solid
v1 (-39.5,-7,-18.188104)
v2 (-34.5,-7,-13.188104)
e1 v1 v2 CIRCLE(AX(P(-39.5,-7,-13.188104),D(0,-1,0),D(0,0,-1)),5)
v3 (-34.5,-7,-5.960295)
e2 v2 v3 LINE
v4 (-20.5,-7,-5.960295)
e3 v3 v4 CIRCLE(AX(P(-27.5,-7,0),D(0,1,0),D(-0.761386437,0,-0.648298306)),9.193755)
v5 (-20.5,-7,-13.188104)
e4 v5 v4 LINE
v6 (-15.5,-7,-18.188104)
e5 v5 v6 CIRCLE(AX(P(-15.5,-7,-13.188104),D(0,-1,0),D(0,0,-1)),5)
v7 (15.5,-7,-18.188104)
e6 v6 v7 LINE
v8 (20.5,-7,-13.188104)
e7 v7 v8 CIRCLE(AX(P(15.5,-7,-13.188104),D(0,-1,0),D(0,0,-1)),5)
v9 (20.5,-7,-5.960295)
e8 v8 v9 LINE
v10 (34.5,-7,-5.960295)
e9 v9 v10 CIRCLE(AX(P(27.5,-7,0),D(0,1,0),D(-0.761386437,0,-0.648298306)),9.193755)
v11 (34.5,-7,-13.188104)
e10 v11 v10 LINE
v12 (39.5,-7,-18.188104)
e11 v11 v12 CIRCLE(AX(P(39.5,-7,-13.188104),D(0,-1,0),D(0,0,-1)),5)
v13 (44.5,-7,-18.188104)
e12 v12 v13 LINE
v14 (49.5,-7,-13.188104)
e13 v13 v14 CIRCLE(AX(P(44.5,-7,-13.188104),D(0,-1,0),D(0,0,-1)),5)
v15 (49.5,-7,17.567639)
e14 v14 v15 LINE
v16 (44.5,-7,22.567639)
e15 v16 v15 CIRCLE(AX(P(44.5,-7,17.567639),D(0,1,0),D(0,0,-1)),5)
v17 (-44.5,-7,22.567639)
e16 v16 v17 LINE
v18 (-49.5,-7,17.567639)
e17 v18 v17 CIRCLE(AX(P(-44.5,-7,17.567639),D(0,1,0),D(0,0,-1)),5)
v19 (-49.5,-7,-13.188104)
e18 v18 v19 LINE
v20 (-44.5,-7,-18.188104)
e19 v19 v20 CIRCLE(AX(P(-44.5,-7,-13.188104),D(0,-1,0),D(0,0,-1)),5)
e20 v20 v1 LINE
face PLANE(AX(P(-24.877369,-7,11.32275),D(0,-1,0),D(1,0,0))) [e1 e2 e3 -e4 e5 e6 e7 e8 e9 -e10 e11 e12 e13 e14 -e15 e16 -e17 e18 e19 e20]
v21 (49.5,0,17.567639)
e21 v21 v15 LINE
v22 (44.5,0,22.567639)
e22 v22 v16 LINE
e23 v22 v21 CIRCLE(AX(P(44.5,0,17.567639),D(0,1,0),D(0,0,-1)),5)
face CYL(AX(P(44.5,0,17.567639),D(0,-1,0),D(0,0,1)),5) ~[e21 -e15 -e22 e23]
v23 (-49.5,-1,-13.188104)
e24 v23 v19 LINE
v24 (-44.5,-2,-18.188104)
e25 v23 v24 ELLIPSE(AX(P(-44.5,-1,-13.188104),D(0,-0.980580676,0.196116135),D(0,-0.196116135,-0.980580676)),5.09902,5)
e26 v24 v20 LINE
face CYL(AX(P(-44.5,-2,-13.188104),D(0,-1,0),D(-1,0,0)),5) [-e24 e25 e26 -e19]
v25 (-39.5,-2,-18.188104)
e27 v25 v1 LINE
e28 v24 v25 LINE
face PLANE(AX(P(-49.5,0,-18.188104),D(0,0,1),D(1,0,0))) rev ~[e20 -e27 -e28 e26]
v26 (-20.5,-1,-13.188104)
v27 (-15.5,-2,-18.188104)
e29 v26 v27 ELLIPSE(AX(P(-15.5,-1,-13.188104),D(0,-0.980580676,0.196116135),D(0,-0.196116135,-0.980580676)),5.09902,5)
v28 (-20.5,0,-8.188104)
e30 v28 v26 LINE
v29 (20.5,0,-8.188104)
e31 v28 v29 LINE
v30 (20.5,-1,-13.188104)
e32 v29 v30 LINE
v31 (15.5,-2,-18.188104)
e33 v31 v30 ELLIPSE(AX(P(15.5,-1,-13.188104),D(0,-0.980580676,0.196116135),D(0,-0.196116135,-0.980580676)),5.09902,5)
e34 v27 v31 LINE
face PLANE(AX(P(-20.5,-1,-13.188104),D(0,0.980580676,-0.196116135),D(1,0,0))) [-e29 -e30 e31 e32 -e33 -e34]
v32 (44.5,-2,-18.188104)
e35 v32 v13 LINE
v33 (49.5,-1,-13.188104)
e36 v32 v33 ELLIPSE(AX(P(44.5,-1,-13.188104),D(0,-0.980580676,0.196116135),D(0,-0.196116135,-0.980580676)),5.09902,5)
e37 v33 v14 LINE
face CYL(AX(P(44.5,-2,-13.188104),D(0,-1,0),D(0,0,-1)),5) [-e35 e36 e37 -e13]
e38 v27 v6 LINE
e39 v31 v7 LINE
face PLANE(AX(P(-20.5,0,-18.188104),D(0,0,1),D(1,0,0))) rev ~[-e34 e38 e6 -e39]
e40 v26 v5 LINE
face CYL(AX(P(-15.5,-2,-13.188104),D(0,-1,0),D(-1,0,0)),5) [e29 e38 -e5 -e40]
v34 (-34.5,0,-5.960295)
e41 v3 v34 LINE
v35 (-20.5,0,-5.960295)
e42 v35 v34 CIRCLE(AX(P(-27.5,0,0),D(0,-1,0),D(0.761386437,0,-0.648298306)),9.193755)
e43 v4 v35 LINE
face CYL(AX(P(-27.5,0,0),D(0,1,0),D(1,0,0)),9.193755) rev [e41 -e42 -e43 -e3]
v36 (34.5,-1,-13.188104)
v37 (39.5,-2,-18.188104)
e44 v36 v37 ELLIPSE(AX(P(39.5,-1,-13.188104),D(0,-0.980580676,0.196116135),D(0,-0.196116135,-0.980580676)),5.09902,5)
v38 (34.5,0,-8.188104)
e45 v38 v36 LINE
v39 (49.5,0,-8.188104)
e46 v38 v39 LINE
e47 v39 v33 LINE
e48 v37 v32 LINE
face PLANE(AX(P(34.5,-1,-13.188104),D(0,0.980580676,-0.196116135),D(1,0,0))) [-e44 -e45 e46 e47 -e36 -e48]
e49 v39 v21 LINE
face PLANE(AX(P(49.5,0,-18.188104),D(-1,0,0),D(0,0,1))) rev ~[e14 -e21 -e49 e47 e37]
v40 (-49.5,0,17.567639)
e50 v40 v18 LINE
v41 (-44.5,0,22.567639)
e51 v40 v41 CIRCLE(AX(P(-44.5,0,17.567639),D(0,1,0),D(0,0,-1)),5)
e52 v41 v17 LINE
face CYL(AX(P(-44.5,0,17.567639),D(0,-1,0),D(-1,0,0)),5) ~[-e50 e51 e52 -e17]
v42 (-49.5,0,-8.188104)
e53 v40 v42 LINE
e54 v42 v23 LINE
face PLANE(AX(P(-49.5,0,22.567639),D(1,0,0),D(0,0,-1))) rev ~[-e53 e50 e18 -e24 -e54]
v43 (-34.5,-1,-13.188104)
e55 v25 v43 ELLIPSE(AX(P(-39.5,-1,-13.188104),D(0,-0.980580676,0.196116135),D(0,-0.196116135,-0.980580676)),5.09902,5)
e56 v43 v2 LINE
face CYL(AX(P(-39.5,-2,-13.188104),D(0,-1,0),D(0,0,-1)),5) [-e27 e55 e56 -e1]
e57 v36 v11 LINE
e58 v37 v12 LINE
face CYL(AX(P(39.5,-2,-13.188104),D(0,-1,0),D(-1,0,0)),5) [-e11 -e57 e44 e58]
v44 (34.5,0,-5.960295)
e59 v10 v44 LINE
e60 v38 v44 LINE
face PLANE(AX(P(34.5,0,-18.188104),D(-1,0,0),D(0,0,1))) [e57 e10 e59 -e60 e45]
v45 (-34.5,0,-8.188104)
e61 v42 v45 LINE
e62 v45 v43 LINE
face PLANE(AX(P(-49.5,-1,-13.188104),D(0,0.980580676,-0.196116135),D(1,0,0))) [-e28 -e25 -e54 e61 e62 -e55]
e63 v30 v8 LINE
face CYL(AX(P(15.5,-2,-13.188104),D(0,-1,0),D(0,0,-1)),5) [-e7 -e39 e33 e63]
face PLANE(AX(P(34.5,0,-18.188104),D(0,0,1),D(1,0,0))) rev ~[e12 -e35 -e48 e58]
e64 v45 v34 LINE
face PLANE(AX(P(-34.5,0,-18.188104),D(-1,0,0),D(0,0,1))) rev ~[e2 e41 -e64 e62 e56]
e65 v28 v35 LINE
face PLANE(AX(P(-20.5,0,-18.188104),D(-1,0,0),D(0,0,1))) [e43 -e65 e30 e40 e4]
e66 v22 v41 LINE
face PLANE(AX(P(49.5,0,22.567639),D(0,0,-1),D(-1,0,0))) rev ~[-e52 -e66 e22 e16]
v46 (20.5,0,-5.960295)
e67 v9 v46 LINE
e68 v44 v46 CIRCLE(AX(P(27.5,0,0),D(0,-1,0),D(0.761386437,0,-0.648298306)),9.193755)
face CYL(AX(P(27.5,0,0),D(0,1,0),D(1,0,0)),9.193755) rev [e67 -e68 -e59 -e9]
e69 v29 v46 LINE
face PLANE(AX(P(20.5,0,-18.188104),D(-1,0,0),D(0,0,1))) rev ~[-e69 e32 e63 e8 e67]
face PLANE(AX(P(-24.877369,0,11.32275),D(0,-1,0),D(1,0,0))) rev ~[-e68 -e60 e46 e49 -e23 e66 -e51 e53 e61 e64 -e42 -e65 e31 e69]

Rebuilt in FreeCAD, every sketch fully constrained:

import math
import FreeCAD as App
import Part
import Sketcher
from FreeCAD import Vector


def edges_at(feature, points):
    """Names of the edges that pass closest to the given points."""
    edges = feature.Shape.Edges
    near = lambda p: min(range(len(edges)), key=lambda i: edges[i].distToShape(Part.Vertex(*p))[0])
    return sorted({f"Edge{near(p) + 1}" for p in points})

doc = App.newDocument("Part")
body = doc.addObject("PartDesign::Body", "Body")

sketch1 = body.newObject("Sketcher::SketchObject", "Sketch")
sketch1.AttachmentSupport = (doc.getObject("XZ_Plane"), [""])
sketch1.MapMode = "FlatFace"
sketch1.addGeometry(Part.LineSegment(Vector(-50, 23, 0), Vector(-50, -18, 0)), False)
sketch1.addGeometry(Part.LineSegment(Vector(-50, -18, 0), Vector(-34, -18, 0)), False)
sketch1.addGeometry(Part.LineSegment(Vector(-34, -18, 0), Vector(-34, 0, 0)), False)
sketch1.addGeometry(Part.ArcOfCircle(Part.Circle(Vector(-28, 0, 0), Vector(0, 0, 1), 7), math.radians(0), math.radians(180)), False)
sketch1.addGeometry(Part.LineSegment(Vector(-20, 0, 0), Vector(-20, -18, 0)), False)
sketch1.addGeometry(Part.LineSegment(Vector(-20, -18, 0), Vector(20, -18, 0)), False)
sketch1.addGeometry(Part.LineSegment(Vector(20, -18, 0), Vector(20, 0, 0)), False)
sketch1.addGeometry(Part.ArcOfCircle(Part.Circle(Vector(28, 0, 0), Vector(0, 0, 1), 7), math.radians(0), math.radians(180)), False)
sketch1.addGeometry(Part.LineSegment(Vector(34, 0, 0), Vector(34, -18, 0)), False)
sketch1.addGeometry(Part.LineSegment(Vector(34, -18, 0), Vector(50, -18, 0)), False)
sketch1.addGeometry(Part.LineSegment(Vector(50, -18, 0), Vector(50, 23, 0)), False)
sketch1.addGeometry(Part.LineSegment(Vector(50, 23, 0), Vector(-50, 23, 0)), False)
sketch1.addConstraint(Sketcher.Constraint("Coincident", 0, 2, 1, 1))
sketch1.addConstraint(Sketcher.Constraint("Coincident", 1, 2, 2, 1))
sketch1.addConstraint(Sketcher.Constraint("Tangent", 2, 2, 3, 2))
sketch1.addConstraint(Sketcher.Constraint("Tangent", 3, 1, 4, 1))
sketch1.addConstraint(Sketcher.Constraint("Coincident", 4, 2, 5, 1))
sketch1.addConstraint(Sketcher.Constraint("Coincident", 5, 2, 6, 1))
sketch1.addConstraint(Sketcher.Constraint("Tangent", 6, 2, 7, 2))
sketch1.addConstraint(Sketcher.Constraint("Tangent", 7, 1, 8, 1))
sketch1.addConstraint(Sketcher.Constraint("Coincident", 8, 2, 9, 1))
sketch1.addConstraint(Sketcher.Constraint("Coincident", 9, 2, 10, 1))
sketch1.addConstraint(Sketcher.Constraint("Coincident", 10, 2, 11, 1))
sketch1.addConstraint(Sketcher.Constraint("Coincident", 11, 2, 0, 1))
sketch1.addConstraint(Sketcher.Constraint("Vertical", 0))
sketch1.addConstraint(Sketcher.Constraint("Horizontal", 1))
sketch1.addConstraint(Sketcher.Constraint("Vertical", 2))
sketch1.addConstraint(Sketcher.Constraint("Vertical", 4))
sketch1.addConstraint(Sketcher.Constraint("Horizontal", 5))
sketch1.addConstraint(Sketcher.Constraint("Vertical", 6))
sketch1.addConstraint(Sketcher.Constraint("Vertical", 8))
sketch1.addConstraint(Sketcher.Constraint("Horizontal", 9))
sketch1.addConstraint(Sketcher.Constraint("Vertical", 10))
sketch1.addConstraint(Sketcher.Constraint("Horizontal", 11))
sketch1.addConstraint(Sketcher.Constraint("Equal", 3, 7))
sketch1.addConstraint(Sketcher.Constraint("Symmetric", 3, 3, 7, 3, -1, 1))
sketch1.addConstraint(Sketcher.Constraint("Symmetric", 0, 2, 9, 2, -2))
sketch1.addConstraint(Sketcher.Constraint("PointOnObject", 3, 3, -1))
sketch1.addConstraint(Sketcher.Constraint("Horizontal", 1, 2, 4, 2))
sketch1.addConstraint(Sketcher.Constraint("Radius", 3, 7.0))
sketch1.addConstraint(Sketcher.Constraint("DistanceX", 1, 1, 1, 2, 15.0))
sketch1.addConstraint(Sketcher.Constraint("DistanceX", 5, 1, 5, 2, 41.0))
sketch1.addConstraint(Sketcher.Constraint("DistanceY", 0, 2, 0, 1, 40.755743))
sketch1.addConstraint(Sketcher.Constraint("DistanceY", 2, 1, 2, 2, 18.188104))
pad1 = body.newObject("PartDesign::Pad", "Pad")
pad1.Profile = sketch1
pad1.Length = 7
doc.recompute()

chamfer = body.newObject("PartDesign::Chamfer", "Chamfer")
chamfer.Base = (pad1, edges_at(pad1, [(0, 0, -18.188), (42, 0, -18.188), (-42, 0, -18.188)]))
chamfer.ChamferType = "Two distances"
chamfer.Size = 10
chamfer.Size2 = 2
chamfer.FlipDirection = True
doc.recompute()

fillet = body.newObject("PartDesign::Fillet", "Fillet")
fillet.Base = (chamfer, edges_at(chamfer, [
    (-20.5, -4.5, -18.188),
    (-34.5, -4.5, -18.188),
    (20.5, -4.5, -18.188),
    (34.5, -4.5, -18.188),
    (49.5, -4.5, -18.188),
    (-49.5, -4.5, -18.188),
]))
fillet.Radius = 5

sketch2 = body.newObject("Sketcher::SketchObject", "Sketch001")
sketch2.AttachmentSupport = (doc.getObject("XZ_Plane"), [""])
sketch2.MapMode = "FlatFace"
sketch2.addGeometry(Part.Circle(Vector(-28, 0, 0), Vector(0, 0, 1), 9), False)
sketch2.addGeometry(Part.Circle(Vector(28, 0, 0), Vector(0, 0, 1), 9), False)
sketch2.addConstraint(Sketcher.Constraint("Equal", 0, 1))
sketch2.addConstraint(Sketcher.Constraint("Symmetric", 0, 3, 1, 3, -1, 1))
sketch2.addConstraint(Sketcher.Constraint("PointOnObject", 0, 3, -1))
sketch2.addConstraint(Sketcher.Constraint("DistanceX", 0, 3, 1, 3, 55.0))
sketch2.addConstraint(Sketcher.Constraint("Diameter", 0, 18.387509))
pocket1 = body.newObject("PartDesign::Pocket", "Pocket")
pocket1.Profile = sketch2
pocket1.Type = "ThroughAll"
pocket1.Reversed = True
doc.recompute()

fillet2 = body.newObject("PartDesign::Fillet", "Fillet001")
fillet2.Base = (pocket1, edges_at(pocket1, [(-49.5, -3.5, 22.568), (49.5, -3.5, 22.568)]))
fillet2.Radius = 5

doc.recompute()
